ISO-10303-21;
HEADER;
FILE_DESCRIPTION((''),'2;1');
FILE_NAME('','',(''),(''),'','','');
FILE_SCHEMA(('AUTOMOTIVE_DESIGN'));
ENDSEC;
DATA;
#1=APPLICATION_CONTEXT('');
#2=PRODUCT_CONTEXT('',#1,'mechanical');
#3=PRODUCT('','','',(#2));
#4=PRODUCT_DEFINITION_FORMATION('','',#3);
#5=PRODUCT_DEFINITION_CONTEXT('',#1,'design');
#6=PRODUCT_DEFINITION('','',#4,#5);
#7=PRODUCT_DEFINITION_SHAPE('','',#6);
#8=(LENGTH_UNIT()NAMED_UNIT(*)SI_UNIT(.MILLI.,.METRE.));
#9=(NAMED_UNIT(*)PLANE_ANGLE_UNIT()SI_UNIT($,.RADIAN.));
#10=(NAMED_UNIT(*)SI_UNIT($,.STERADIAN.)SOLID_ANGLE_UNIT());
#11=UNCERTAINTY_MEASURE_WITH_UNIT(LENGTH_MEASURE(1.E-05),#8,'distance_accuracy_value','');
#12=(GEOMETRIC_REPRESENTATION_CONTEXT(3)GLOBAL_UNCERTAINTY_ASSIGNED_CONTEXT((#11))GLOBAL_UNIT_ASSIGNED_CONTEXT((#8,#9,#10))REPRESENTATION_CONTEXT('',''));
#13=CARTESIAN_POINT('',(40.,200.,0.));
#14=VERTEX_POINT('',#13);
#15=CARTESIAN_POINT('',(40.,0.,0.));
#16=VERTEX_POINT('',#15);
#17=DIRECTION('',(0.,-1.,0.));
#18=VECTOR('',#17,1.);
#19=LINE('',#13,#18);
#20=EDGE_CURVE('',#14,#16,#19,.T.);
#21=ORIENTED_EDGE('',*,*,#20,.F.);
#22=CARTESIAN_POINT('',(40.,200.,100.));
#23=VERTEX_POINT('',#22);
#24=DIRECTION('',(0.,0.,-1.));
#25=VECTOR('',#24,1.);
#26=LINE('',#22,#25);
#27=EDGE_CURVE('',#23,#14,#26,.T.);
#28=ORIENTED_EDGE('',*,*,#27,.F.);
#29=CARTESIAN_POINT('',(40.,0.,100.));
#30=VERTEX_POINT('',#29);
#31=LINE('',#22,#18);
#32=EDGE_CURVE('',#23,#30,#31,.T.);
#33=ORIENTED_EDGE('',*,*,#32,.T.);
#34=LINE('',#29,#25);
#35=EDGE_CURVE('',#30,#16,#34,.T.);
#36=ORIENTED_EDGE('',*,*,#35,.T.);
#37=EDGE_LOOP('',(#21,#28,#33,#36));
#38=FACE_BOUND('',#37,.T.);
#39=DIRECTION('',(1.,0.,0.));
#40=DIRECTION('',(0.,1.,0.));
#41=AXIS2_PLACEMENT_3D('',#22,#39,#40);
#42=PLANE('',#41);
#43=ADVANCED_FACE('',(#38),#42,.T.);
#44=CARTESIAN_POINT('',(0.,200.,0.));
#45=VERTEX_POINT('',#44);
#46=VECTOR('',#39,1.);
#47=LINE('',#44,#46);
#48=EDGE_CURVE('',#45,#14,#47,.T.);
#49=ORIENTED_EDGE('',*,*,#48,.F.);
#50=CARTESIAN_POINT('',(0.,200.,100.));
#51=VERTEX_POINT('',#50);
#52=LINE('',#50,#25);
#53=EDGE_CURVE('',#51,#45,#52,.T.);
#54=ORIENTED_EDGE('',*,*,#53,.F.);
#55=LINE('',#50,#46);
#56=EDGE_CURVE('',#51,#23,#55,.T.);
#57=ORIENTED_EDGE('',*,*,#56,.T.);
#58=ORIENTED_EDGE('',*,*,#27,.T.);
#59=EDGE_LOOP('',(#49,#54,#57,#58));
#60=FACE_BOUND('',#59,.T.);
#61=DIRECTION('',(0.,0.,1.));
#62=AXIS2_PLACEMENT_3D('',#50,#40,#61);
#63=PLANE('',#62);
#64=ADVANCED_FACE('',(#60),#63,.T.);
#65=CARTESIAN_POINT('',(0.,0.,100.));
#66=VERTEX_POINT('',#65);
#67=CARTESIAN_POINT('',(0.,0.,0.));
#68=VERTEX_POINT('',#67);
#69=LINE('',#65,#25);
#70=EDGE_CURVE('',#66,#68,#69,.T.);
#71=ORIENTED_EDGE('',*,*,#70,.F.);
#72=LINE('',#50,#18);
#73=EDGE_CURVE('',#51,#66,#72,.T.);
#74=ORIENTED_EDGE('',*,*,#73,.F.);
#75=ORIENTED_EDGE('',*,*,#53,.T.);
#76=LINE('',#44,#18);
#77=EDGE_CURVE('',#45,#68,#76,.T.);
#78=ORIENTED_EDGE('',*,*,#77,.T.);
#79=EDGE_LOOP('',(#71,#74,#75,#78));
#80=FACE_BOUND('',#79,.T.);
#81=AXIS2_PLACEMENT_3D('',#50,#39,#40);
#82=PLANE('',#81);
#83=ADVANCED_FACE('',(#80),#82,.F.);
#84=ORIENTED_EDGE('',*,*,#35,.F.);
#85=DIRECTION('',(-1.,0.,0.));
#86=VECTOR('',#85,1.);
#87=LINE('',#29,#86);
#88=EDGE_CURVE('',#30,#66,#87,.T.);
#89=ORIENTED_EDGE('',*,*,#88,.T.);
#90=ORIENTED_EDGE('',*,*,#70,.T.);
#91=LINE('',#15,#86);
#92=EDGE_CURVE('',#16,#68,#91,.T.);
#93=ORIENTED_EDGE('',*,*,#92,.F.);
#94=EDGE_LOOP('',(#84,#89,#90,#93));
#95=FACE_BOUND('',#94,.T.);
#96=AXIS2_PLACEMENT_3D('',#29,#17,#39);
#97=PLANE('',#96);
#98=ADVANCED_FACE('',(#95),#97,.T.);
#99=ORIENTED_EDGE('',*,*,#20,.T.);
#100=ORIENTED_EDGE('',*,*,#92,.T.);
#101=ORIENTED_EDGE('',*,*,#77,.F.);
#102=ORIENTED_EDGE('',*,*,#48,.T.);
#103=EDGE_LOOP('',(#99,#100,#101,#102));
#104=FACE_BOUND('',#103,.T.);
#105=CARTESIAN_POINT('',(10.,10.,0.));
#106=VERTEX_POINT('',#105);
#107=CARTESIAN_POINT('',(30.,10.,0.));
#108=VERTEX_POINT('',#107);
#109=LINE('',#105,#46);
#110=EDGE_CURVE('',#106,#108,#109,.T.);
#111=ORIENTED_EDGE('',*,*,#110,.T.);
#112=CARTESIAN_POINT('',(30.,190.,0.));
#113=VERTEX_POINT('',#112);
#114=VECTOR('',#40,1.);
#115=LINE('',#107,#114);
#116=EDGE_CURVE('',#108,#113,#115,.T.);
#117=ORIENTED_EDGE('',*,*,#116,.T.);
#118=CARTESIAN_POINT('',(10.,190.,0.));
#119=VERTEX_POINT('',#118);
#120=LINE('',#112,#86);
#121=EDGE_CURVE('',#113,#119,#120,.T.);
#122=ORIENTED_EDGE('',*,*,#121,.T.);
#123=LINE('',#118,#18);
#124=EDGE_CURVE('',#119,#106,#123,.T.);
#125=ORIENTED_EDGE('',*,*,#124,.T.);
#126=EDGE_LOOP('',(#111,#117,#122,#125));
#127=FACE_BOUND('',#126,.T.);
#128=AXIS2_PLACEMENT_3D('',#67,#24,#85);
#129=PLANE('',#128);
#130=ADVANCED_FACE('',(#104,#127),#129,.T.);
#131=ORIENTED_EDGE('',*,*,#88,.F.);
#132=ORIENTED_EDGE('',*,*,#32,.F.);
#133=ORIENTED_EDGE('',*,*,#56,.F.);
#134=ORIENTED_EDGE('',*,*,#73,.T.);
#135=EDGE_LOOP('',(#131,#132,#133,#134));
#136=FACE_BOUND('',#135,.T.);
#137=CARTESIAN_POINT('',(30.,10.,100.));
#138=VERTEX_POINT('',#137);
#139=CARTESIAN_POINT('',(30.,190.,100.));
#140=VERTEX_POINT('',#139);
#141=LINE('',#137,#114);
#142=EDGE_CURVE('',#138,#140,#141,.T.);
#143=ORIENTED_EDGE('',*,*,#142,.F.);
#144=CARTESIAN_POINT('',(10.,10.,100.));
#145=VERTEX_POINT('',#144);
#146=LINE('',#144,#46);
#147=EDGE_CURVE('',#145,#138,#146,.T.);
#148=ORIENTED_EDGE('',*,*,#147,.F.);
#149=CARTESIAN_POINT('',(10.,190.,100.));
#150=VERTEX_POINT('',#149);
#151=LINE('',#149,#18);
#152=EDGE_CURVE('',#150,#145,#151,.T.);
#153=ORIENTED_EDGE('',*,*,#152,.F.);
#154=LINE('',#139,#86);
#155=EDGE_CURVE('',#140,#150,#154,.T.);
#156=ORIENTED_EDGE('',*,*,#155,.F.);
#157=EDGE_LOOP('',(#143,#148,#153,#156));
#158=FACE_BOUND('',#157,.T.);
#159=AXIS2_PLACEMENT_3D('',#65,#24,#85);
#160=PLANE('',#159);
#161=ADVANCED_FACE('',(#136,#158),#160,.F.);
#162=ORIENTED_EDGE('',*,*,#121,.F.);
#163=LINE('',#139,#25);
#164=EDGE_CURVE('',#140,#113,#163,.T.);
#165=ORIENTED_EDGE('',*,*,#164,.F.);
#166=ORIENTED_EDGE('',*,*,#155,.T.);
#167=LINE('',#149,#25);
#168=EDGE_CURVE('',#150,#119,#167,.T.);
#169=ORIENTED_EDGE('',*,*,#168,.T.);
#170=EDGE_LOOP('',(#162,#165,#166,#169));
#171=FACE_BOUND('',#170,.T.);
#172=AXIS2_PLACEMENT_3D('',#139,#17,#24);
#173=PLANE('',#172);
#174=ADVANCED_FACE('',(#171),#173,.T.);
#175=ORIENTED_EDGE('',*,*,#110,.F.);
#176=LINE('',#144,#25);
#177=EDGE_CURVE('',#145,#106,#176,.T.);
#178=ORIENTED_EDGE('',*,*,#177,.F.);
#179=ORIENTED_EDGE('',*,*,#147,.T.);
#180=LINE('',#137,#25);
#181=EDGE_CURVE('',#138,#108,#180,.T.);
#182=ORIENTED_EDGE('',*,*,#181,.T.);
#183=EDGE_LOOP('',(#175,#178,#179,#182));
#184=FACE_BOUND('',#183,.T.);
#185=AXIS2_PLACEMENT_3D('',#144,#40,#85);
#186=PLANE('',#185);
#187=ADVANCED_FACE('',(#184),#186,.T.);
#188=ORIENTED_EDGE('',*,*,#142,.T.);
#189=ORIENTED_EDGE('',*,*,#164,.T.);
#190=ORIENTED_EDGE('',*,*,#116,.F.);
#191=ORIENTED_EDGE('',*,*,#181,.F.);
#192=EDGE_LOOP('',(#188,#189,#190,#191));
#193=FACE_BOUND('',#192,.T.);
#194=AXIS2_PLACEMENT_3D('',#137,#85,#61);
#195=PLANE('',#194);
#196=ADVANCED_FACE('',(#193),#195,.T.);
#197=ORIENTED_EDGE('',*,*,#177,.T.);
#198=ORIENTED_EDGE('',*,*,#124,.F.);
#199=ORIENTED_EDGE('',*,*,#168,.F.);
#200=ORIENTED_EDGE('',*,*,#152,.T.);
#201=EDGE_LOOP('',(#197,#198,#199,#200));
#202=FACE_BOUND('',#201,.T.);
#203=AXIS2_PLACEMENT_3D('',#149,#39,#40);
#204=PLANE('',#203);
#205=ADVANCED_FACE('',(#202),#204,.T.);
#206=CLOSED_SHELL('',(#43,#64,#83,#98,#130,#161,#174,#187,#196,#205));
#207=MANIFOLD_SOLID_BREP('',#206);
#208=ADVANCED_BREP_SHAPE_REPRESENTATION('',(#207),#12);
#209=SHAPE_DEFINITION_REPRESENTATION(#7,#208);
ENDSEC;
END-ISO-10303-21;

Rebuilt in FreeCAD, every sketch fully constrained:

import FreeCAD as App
import Part
import Sketcher

V = App.Vector


def add_polygon(sketch, points):
    """Adds a closed chain of lines whose ends are joined by coincident constraints."""
    first, n = sketch.GeometryCount, len(points)
    for a, b in zip(points, points[1:] + points[:1]):
        sketch.addGeometry(Part.LineSegment(App.Vector(*a, 0), App.Vector(*b, 0)), False)
    for i in range(n):
        sketch.addConstraint(Sketcher.Constraint("Coincident", first + i, 2, first + (i + 1) % n, 1))

doc = App.newDocument("Part")
params = doc.addObject("Spreadsheet::Sheet", "Params")
for row, (alias, value) in enumerate([
    ("sketch1_width", "40 mm"),
    ("sketch1_width2", "20 mm"),
    ("sketch1_height", "200 mm"),
    ("sketch1_height2", "180 mm"),
    ("pad1_length", "100 mm"),
], start=1):
    params.set(f"A{row}", alias)
    params.set(f"B{row}", "=" + value)
    params.setAlias(f"B{row}", alias)

body = doc.addObject("PartDesign::Body", "Body")

sketch1 = body.newObject("Sketcher::SketchObject", "Sketch")
sketch1.AttachmentSupport = (doc.getObject("XY_Plane"), [""])
sketch1.MapMode = "FlatFace"
add_polygon(sketch1, [(0, 200), (0, 0), (40, 0), (40, 200)])
add_polygon(sketch1, [(30, 10), (10, 10), (10, 190), (30, 190)])
sketch1.addConstraint([
    Sketcher.Constraint("Vertical", 0),
    Sketcher.Constraint("Horizontal", 1),
    Sketcher.Constraint("Vertical", 2),
    Sketcher.Constraint("Horizontal", 3),
    Sketcher.Constraint("Horizontal", 4),
    Sketcher.Constraint("Vertical", 5),
    Sketcher.Constraint("Horizontal", 6),
    Sketcher.Constraint("Vertical", 7),
    Sketcher.Constraint("Coincident", 0, 2, -1, 1),
    Sketcher.Constraint("DistanceX", 1, 1, 1, 2, 40.0),
    Sketcher.Constraint("DistanceX", 4, 2, 4, 1, 20.0),
    Sketcher.Constraint("DistanceY", 0, 2, 0, 1, 200.0),
    Sketcher.Constraint("DistanceY", 5, 1, 5, 2, 180.0),
    Sketcher.Constraint("DistanceX", -1, 1, 4, 2, 10.0),
    Sketcher.Constraint("DistanceY", -1, 1, 4, 2, 10.0),
])
sketch1.setExpression("Constraints[17]", "Params.sketch1_width")
sketch1.setExpression("Constraints[18]", "Params.sketch1_width2")
sketch1.setExpression("Constraints[19]", "Params.sketch1_height")
sketch1.setExpression("Constraints[20]", "Params.sketch1_height2")
pad1 = body.newObject("PartDesign::Pad", "Pad")
pad1.Profile = sketch1
pad1.setExpression("Length", "Params.pad1_length")

doc.recompute()
